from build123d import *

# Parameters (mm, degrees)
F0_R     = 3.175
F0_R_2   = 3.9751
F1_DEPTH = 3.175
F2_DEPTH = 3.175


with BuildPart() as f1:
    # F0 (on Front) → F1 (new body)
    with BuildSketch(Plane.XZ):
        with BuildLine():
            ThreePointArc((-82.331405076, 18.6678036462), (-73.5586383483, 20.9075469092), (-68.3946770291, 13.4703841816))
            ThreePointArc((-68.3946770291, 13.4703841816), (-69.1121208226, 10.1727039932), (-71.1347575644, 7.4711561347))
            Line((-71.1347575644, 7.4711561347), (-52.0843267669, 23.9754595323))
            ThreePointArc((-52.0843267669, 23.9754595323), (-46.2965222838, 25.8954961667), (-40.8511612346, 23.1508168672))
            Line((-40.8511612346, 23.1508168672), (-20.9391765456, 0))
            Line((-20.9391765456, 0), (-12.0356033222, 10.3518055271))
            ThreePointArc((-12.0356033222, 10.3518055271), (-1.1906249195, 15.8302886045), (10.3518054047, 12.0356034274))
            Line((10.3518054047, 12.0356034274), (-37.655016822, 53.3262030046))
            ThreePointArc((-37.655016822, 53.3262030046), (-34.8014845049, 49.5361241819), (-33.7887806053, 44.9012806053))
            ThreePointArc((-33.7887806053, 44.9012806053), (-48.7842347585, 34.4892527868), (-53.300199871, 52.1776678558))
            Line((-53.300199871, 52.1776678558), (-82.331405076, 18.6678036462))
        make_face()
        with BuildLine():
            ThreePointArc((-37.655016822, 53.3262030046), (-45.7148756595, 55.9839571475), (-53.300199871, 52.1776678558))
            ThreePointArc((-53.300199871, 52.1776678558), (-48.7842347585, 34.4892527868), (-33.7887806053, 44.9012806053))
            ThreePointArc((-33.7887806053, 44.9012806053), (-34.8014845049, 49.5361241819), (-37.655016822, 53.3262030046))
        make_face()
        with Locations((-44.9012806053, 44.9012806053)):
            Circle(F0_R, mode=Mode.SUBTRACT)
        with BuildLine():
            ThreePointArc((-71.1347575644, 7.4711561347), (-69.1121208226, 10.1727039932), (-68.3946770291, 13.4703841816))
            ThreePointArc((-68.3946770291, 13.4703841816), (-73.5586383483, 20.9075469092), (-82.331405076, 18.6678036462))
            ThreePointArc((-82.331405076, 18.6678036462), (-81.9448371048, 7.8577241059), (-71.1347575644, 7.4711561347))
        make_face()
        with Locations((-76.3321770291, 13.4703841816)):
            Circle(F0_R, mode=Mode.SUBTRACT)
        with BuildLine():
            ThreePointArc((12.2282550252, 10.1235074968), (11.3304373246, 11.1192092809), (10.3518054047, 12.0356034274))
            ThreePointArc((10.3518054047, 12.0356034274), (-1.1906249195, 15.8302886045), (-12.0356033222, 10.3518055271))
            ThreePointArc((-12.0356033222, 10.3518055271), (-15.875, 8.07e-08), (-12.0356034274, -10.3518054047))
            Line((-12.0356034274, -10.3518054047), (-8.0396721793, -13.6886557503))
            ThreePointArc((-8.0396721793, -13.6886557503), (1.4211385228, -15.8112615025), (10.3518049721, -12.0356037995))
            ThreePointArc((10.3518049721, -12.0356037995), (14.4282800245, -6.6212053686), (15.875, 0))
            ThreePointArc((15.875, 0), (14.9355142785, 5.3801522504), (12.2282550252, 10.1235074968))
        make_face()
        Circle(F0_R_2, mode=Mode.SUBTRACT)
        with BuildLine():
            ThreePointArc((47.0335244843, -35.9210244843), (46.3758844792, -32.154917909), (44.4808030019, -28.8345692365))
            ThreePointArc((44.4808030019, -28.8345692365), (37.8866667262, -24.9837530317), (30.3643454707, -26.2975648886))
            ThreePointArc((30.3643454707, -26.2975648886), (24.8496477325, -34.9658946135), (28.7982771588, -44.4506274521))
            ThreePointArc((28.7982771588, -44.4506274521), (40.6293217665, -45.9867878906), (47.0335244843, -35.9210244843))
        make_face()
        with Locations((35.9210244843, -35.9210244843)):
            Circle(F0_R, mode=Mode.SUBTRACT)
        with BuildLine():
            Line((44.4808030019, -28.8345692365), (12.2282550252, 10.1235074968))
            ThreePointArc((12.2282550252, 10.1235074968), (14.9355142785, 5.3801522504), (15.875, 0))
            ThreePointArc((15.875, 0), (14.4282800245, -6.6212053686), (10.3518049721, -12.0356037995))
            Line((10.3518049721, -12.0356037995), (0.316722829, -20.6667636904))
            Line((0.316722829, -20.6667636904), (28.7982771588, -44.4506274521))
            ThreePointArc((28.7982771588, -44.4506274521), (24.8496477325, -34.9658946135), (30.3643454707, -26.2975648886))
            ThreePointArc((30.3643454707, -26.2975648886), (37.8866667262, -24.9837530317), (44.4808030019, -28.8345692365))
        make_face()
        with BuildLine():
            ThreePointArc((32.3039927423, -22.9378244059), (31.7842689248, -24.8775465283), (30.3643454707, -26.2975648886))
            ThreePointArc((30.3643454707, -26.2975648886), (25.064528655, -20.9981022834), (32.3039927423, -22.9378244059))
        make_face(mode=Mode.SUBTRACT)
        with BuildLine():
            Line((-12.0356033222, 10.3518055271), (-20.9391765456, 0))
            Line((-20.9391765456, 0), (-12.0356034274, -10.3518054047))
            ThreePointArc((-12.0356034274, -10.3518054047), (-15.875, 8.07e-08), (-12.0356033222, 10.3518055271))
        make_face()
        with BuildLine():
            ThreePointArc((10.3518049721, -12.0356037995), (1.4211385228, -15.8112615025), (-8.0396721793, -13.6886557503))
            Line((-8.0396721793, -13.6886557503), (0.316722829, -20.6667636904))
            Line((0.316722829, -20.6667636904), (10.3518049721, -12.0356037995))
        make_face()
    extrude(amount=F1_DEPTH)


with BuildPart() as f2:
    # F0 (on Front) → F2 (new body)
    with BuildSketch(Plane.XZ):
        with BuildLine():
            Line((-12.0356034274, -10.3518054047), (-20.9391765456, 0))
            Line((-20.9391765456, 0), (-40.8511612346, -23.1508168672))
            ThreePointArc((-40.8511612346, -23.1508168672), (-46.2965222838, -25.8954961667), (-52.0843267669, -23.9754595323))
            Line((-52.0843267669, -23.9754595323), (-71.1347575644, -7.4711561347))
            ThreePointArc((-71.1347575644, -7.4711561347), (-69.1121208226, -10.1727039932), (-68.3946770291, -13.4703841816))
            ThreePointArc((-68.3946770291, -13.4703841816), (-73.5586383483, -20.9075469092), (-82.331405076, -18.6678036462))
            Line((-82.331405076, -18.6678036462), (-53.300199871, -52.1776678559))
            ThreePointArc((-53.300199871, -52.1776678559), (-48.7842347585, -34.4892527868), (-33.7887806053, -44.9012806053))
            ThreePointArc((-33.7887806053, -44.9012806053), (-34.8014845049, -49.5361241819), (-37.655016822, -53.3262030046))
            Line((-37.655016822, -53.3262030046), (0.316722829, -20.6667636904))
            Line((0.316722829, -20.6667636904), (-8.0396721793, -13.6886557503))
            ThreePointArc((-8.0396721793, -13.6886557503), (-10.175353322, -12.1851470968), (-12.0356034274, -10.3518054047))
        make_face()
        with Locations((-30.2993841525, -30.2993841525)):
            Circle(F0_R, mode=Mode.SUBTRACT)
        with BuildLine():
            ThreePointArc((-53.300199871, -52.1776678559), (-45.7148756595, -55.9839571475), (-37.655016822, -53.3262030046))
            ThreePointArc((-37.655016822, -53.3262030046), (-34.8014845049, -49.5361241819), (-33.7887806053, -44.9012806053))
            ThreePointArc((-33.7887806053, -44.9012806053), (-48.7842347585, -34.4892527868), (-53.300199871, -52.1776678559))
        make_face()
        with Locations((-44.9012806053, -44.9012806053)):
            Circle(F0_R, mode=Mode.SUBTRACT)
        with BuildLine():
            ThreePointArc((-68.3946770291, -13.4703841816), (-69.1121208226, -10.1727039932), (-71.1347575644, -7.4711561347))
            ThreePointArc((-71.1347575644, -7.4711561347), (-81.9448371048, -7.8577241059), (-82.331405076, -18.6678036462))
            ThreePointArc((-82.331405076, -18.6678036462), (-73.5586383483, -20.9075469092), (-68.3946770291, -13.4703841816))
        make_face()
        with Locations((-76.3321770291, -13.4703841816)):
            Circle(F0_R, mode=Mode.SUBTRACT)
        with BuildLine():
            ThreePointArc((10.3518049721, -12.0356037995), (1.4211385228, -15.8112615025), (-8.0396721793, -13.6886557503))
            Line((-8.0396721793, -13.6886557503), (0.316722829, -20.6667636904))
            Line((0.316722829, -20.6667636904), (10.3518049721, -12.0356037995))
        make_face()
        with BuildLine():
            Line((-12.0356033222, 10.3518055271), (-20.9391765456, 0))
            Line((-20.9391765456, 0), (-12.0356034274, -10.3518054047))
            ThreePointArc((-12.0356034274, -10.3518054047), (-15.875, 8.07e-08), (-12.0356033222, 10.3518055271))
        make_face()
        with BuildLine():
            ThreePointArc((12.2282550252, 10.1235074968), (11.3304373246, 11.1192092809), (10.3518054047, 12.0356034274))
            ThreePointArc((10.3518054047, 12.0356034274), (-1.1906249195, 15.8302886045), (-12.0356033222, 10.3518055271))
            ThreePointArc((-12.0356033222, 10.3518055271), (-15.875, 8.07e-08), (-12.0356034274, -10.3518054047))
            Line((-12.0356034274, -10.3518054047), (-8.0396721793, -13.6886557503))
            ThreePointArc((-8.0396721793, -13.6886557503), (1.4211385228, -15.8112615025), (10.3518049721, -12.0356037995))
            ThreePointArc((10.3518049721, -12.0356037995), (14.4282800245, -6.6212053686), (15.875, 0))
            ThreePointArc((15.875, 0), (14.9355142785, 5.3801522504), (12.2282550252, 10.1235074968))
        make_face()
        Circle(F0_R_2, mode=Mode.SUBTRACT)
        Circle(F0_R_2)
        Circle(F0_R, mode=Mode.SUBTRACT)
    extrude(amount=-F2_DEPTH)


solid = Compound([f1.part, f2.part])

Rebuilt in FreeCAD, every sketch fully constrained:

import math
import FreeCAD as App
import Part
import Sketcher
Q = App.Units.Quantity

doc = App.newDocument("Part")
params = doc.addObject("Spreadsheet::Sheet", "Params")
for row, (alias, value) in enumerate([
    ("sketch1_diameter", "0.25 in"),
    ("sketch1_diameter2", "0.313 in"),
    ("sketch1_radius", "0.3125 in"),
    ("sketch1_radius2", "0.313 in"),
    ("sketch1_radius3", "0.4375 in"),
    ("pad1_length", "0.125 in"),
    ("sketch2_diameter", "0.25 in"),
    ("sketch2_diameter2", "0.25 in"),
    ("sketch2_diameter3", "0.25 in"),
    ("sketch2_diameter4", "0.25 in"),
    ("sketch2_radius", "0.313 in"),
    ("pad2_length", "0.125 in"),
], start=1):
    params.set(f"A{row}", alias)
    params.set(f"B{row}", "=" + value)
    params.setAlias(f"B{row}", alias)

body = doc.addObject("PartDesign::Body", "Body")

# Sketch on XZ plane
sketch1 = body.newObject("Sketcher::SketchObject", "Sketch")
sketch1.AttachmentSupport = (doc.getObject("XZ_Plane"), [""])
sketch1.MapMode = "FlatFace"
sketch1.addGeometry([
    Part.LineSegment(App.Vector(-53.3, 52.2, 0), App.Vector(-82.3, 18.7, 0)),  # 0
    Part.ArcOfCircle(Part.Circle(App.Vector(-76.3, 13.5, 0), App.Vector(0, 0, 1), 7.9), math.radians(139), math.radians(311)),  # 1
    Part.LineSegment(App.Vector(-71.1, 7.5, 0), App.Vector(-52.1, 24, 0)),  # 2
    Part.ArcOfCircle(Part.Circle(App.Vector(-46.9, 18, 0), App.Vector(0, 0, 1), 8), math.radians(41), math.radians(131)),  # 3
    Part.LineSegment(App.Vector(-40.9, 23.2, 0), App.Vector(-20.9, 0, 0)),  # 4
    Part.LineSegment(App.Vector(-20.9, 0, 0), App.Vector(-12, -10.4, 0)),  # 5
    Part.LineSegment(App.Vector(-12, -10.4, 0), App.Vector(-8, -13.7, 0)),  # 6
    Part.LineSegment(App.Vector(-8, -13.7, 0), App.Vector(0.3, -20.7, 0)),  # 7
    Part.LineSegment(App.Vector(0.3, -20.7, 0), App.Vector(28.8, -44.5, 0)),  # 8
    Part.ArcOfCircle(Part.Circle(App.Vector(35.9, -35.9, 0), App.Vector(0, 0, 1), 11.1), math.radians(-130), math.radians(0)),  # 9
    Part.ArcOfCircle(Part.Circle(App.Vector(35.9, -35.9, 0), App.Vector(0, 0, 1), 11.1), math.radians(0), math.radians(40)),  # 10
    Part.LineSegment(App.Vector(44.5, -28.8, 0), App.Vector(12.2, 10.1, 0)),  # 11
    Part.ArcOfCircle(Part.Circle(App.Vector(0, 0, 0), App.Vector(0, 0, 1), 15.9), math.radians(39.62), math.radians(49.3)),  # 12
    Part.LineSegment(App.Vector(10.4, 12, 0), App.Vector(-37.7, 53.3, 0)),  # 13
    Part.ArcOfCircle(Part.Circle(App.Vector(-44.9, 44.9, 0), App.Vector(0, 0, 1), 11.1), math.radians(49), math.radians(139)),  # 14
    Part.Circle(App.Vector(35.9, -35.9, 0), App.Vector(0, 0, 1), 3.2),  # 15
    Part.ArcOfCircle(Part.Circle(App.Vector(28.4, -22.9, 0), App.Vector(0, 0, 1), 3.9), math.radians(0), math.radians(300)),  # 16
    Part.ArcOfCircle(Part.Circle(App.Vector(28.4, -22.9, 0), App.Vector(0, 0, 1), 3.9), math.radians(-60), math.radians(0)),  # 17
    Part.Circle(App.Vector(0, 0, 0), App.Vector(0, 0, 1), 4),  # 18
    Part.Circle(App.Vector(-76.3, 13.5, 0), App.Vector(0, 0, 1), 3.2),  # 19
    Part.Circle(App.Vector(-44.9, 44.9, 0), App.Vector(0, 0, 1), 3.2),  # 20
], False)
sketch1.addConstraint([
    Sketcher.Constraint("Tangent", 0, 2, 1, 1),
    Sketcher.Constraint("Tangent", 1, 2, 2, 1),
    Sketcher.Constraint("Tangent", 2, 2, 3, 2),
    Sketcher.Constraint("Tangent", 3, 1, 4, 1),
    Sketcher.Constraint("Coincident", 4, 2, 5, 1),
    Sketcher.Constraint("Coincident", 5, 2, 6, 1),
    Sketcher.Constraint("Coincident", 6, 2, 7, 1),
    Sketcher.Constraint("Coincident", 7, 2, 8, 1),
    Sketcher.Constraint("Tangent", 8, 2, 9, 1),
    Sketcher.Constraint("Tangent", 9, 2, 10, 1),
    Sketcher.Constraint("Tangent", 10, 2, 11, 1),
    Sketcher.Constraint("Tangent", 11, 2, 12, 1),
    Sketcher.Constraint("Tangent", 12, 2, 13, 1),
    Sketcher.Constraint("Tangent", 13, 2, 14, 1),
    Sketcher.Constraint("Tangent", 14, 2, 0, 1),
    Sketcher.Constraint("Tangent", 16, 1, 17, 2),
    Sketcher.Constraint("Coincident", 17, 1, 16, 2),
    Sketcher.Constraint("Coincident", 12, 3, -1, 1),
    Sketcher.Constraint("Coincident", 18, 3, -1, 1),
    Sketcher.Constraint("Coincident", 15, 3, 9, 3),
    Sketcher.Constraint("Coincident", 19, 3, 1, 3),
    Sketcher.Constraint("Coincident", 20, 3, 14, 3),
    Sketcher.Constraint("Equal", 9, 10),
    Sketcher.Constraint("Equal", 10, 14),
    Sketcher.Constraint("Equal", 15, 19),
    Sketcher.Constraint("Equal", 19, 20),
    Sketcher.Constraint("PointOnObject", 4, 2, -1),
    Sketcher.Constraint("Parallel", 4, 5),
    Sketcher.Constraint("Parallel", 6, 7),
    Sketcher.Constraint("Parallel", 7, 8),
    Sketcher.Constraint("Horizontal", 15, 3, 9, 2),
    Sketcher.Constraint("Horizontal", 17, 3, 16, 1),
    Sketcher.Constraint("Diameter", 15, Q("0.25 in")),
    Sketcher.Constraint("Diameter", 18, Q("0.313 in")),
    Sketcher.Constraint("Radius", 1, Q("0.3125 in")),
    Sketcher.Constraint("Radius", 3, Q("0.313 in")),
    Sketcher.Constraint("Radius", 9, Q("0.4375 in")),
    Sketcher.Constraint("Radius", 12, Q("0.625 in")),
    Sketcher.Constraint("Radius", 16, 3.879594),
    Sketcher.Constraint("DistanceX", -1, 1, 16, 3, 28.424399),
    Sketcher.Constraint("DistanceX", 14, 2, -1, 1, 53.3002),
    Sketcher.Constraint("DistanceX", 1, 3, 9, 3, 112.253202),
    Sketcher.Constraint("DistanceY", 9, 3, 16, 3, 12.9832),
    Sketcher.Constraint("Distance", 6, 5.205962),
    Sketcher.Constraint("Distance", 7, 10.886842),
    Sketcher.Constraint("DistanceX", 3, 3, -1, 1, 46.878591),
    Sketcher.Constraint("DistanceX", 14, 3, -1, 1, 44.901281),
    Sketcher.Constraint("DistanceY", -1, 1, 14, 3, 44.901281),
    Sketcher.Constraint("DistanceY", -1, 1, 2, 2, 23.97546),
    Sketcher.Constraint("DistanceX", 3, 1, -1, 1, 40.851161),
    Sketcher.Constraint("DistanceY", 10, 2, -1, 1, 28.834569),
    Sketcher.Constraint("DistanceY", 1, 3, 3, 3, 4.496249),
    Sketcher.Constraint("DistanceY", 16, 3, 5, 2, 12.586019),
    Sketcher.Constraint("DistanceY", 17, 1, 16, 1, 3.35974),
])
sketch1.setExpression("Constraints[32]", "Params.sketch1_diameter")
sketch1.setExpression("Constraints[33]", "Params.sketch1_diameter2")
sketch1.setExpression("Constraints[34]", "Params.sketch1_radius")
sketch1.setExpression("Constraints[35]", "Params.sketch1_radius2")
sketch1.setExpression("Constraints[36]", "Params.sketch1_radius3")
pad1 = body.newObject("PartDesign::Pad", "Pad")
pad1.Profile = sketch1
pad1.setExpression("Length", "Params.pad1_length")
body2 = doc.addObject("PartDesign::Body", "Body001")

# Sketch on XZ plane
sketch2 = body2.newObject("Sketcher::SketchObject", "Sketch001")
sketch2.AttachmentSupport = (doc.getObject("XZ_Plane001"), [""])
sketch2.MapMode = "FlatFace"
sketch2.addGeometry([
    Part.LineSegment(App.Vector(-20.939177, 0, 0), App.Vector(-40.851161, -23.150817, 0)),  # 0
    Part.ArcOfCircle(Part.Circle(App.Vector(-46.878591, -17.966633, 0), App.Vector(0, 0, 1), 7.9502), math.radians(-130.903956), math.radians(-40.698778)),  # 1
    Part.LineSegment(App.Vector(-52.084327, -23.97546, 0), App.Vector(-71.134758, -7.471156, 0)),  # 2
    Part.ArcOfCircle(Part.Circle(App.Vector(-76.332177, -13.470384, 0), App.Vector(0, 0, 1), 7.9375), math.radians(49.096044), math.radians(220.903956)),  # 3
    Part.LineSegment(App.Vector(-82.331405, -18.667804, 0), App.Vector(-53.3002, -52.177668, 0)),  # 4
    Part.ArcOfCircle(Part.Circle(App.Vector(-44.901281, -44.901281, 0), App.Vector(0, 0, 1), 11.1125), math.radians(-139.096044), math.radians(-49.301222)),  # 5
    Part.LineSegment(App.Vector(-37.655017, -53.326203, 0), App.Vector(0.316723, -20.666764, 0)),  # 6
    Part.LineSegment(App.Vector(0.316723, -20.666764, 0), App.Vector(10.351805, -12.035604, 0)),  # 7
    Part.ArcOfCircle(Part.Circle(App.Vector(0, 0, 0), App.Vector(0, 0, 1), 15.875), math.radians(-49.301224), math.radians(39.620621)),  # 8
    Part.ArcOfCircle(Part.Circle(App.Vector(0, 0, 0), App.Vector(0, 0, 1), 15.875), math.radians(39.620621), math.radians(49.301222)),  # 9
    Part.ArcOfCircle(Part.Circle(App.Vector(0, 0, 0), App.Vector(0, 0, 1), 15.875), math.radians(49.301222), math.radians(139.301222)),  # 10
    Part.LineSegment(App.Vector(-12.035603, 10.351806, 0), App.Vector(-20.939177, 0, 0)),  # 11
    Part.Circle(App.Vector(-44.901281, -44.901281, 0), App.Vector(0, 0, 1), 3.175),  # 12
    Part.Circle(App.Vector(-30.299384, -30.299384, 0), App.Vector(0, 0, 1), 3.175),  # 13
    Part.Circle(App.Vector(-76.332177, -13.470384, 0), App.Vector(0, 0, 1), 3.175),  # 14
    Part.ArcOfCircle(Part.Circle(App.Vector(0, 0, 0), App.Vector(0, 0, 1), 15.875), math.radians(-139.301222), math.radians(-120.426727)),  # 15
    Part.LineSegment(App.Vector(-12.035603, -10.351805, 0), App.Vector(-8.039672, -13.688656, 0)),  # 16
    Part.Circle(App.Vector(0, 0, 0), App.Vector(0, 0, 1), 3.175),  # 17
], False)
sketch2.addConstraint([
    Sketcher.Constraint("Coincident", 0, 2, 1, 2),
    Sketcher.Constraint("Coincident", 1, 1, 2, 1),
    Sketcher.Constraint("Coincident", 2, 2, 3, 1),
    Sketcher.Constraint("Coincident", 3, 2, 4, 1),
    Sketcher.Constraint("Coincident", 4, 2, 5, 1),
    Sketcher.Constraint("Coincident", 5, 2, 6, 1),
    Sketcher.Constraint("Coincident", 6, 2, 7, 1),
    Sketcher.Constraint("Coincident", 7, 2, 8, 1),
    Sketcher.Constraint("Coincident", 8, 2, 9, 1),
    Sketcher.Constraint("Coincident", 9, 2, 10, 1),
    Sketcher.Constraint("Coincident", 10, 2, 11, 1),
    Sketcher.Constraint("Coincident", 11, 2, 0, 1),
    Sketcher.Constraint("Coincident", 15, 1, 16, 1),
    Sketcher.Constraint("Coincident", 16, 2, 15, 2),
    Sketcher.Constraint("Coincident", 8, 3, -1, 1),
    Sketcher.Constraint("Coincident", 9, 3, -1, 1),
    Sketcher.Constraint("Coincident", 10, 3, -1, 1),
    Sketcher.Constraint("Coincident", 15, 3, -1, 1),
    Sketcher.Constraint("Coincident", 17, 3, -1, 1),
    Sketcher.Constraint("Coincident", 12, 3, 5, 3),
    Sketcher.Constraint("Coincident", 14, 3, 3, 3),
    Sketcher.Constraint("PointOnObject", 11, 2, -1),
    Sketcher.Constraint("Diameter", 12, Q("0.25 in")),
    Sketcher.Constraint("Diameter", 13, Q("0.25 in")),
    Sketcher.Constraint("Diameter", 14, Q("0.25 in")),
    Sketcher.Constraint("Diameter", 17, Q("0.25 in")),
    Sketcher.Constraint("Radius", 1, Q("0.313 in")),
    Sketcher.Constraint("Radius", 3, Q("0.3125 in")),
    Sketcher.Constraint("Radius", 5, Q("0.4375 in")),
    Sketcher.Constraint("Radius", 8, Q("0.625 in")),
    Sketcher.Constraint("Radius", 15, Q("0.625 in")),
    Sketcher.Constraint("DistanceX", 4, 2, -1, 1, 53.3002),
    Sketcher.Constraint("DistanceY", 13, 3, 14, 3, 16.829),
    Sketcher.Constraint("Distance", 16, 5.205962),
    Sketcher.Constraint("DistanceX", 1, 3, -1, 1, 46.878591),
    Sketcher.Constraint("DistanceX", 5, 3, -1, 1, 44.901281),
    Sketcher.Constraint("DistanceY", 5, 3, -1, 1, 44.901281),
    Sketcher.Constraint("DistanceX", 0, 2, -1, 1, 40.851161),
    Sketcher.Constraint("DistanceY", 1, 1, -1, 1, 23.97546),
    Sketcher.Constraint("DistanceY", 1, 3, 3, 3, 4.496249),
    Sketcher.Constraint("DistanceX", 3, 3, 2, 2, 5.197419),
    Sketcher.Constraint("DistanceX", 2, 2, 1, 1, 19.050431),
    Sketcher.Constraint("DistanceX", 3, 2, 3, 3, 5.999228),
    Sketcher.Constraint("DistanceY", 4, 2, 0, 2, 29.026851),
    Sketcher.Constraint("DistanceY", 5, 2, 13, 3, 23.026819),
    Sketcher.Constraint("DistanceY", 6, 2, 7, 2, 8.63116),
    Sketcher.Constraint("DistanceX", 9, 2, 8, 2, 1.87645),
    Sketcher.Constraint("DistanceX", 15, 1, 16, 2, 3.995931),
    Sketcher.Constraint("Distance", 0, 30.536003),
    Sketcher.Constraint("Distance", 6, 50.084848),
    Sketcher.Constraint("Distance", 7, 13.236306),
    Sketcher.Constraint("Distance", 11, 13.654065),
    Sketcher.Constraint("DistanceX", 13, 3, -1, 1, 30.299384),
    Sketcher.Constraint("DistanceX", -1, 1, 8, 2, 12.228255),
])
sketch2.setExpression("Constraints[22]", "Params.sketch2_diameter")
sketch2.setExpression("Constraints[23]", "Params.sketch2_diameter2")
sketch2.setExpression("Constraints[24]", "Params.sketch2_diameter3")
sketch2.setExpression("Constraints[25]", "Params.sketch2_diameter4")
sketch2.setExpression("Constraints[26]", "Params.sketch2_radius")
pad2 = body2.newObject("PartDesign::Pad", "Pad001")
pad2.Profile = sketch2
pad2.setExpression("Length", "Params.pad2_length")
pad2.Reversed = True

doc.recompute()
